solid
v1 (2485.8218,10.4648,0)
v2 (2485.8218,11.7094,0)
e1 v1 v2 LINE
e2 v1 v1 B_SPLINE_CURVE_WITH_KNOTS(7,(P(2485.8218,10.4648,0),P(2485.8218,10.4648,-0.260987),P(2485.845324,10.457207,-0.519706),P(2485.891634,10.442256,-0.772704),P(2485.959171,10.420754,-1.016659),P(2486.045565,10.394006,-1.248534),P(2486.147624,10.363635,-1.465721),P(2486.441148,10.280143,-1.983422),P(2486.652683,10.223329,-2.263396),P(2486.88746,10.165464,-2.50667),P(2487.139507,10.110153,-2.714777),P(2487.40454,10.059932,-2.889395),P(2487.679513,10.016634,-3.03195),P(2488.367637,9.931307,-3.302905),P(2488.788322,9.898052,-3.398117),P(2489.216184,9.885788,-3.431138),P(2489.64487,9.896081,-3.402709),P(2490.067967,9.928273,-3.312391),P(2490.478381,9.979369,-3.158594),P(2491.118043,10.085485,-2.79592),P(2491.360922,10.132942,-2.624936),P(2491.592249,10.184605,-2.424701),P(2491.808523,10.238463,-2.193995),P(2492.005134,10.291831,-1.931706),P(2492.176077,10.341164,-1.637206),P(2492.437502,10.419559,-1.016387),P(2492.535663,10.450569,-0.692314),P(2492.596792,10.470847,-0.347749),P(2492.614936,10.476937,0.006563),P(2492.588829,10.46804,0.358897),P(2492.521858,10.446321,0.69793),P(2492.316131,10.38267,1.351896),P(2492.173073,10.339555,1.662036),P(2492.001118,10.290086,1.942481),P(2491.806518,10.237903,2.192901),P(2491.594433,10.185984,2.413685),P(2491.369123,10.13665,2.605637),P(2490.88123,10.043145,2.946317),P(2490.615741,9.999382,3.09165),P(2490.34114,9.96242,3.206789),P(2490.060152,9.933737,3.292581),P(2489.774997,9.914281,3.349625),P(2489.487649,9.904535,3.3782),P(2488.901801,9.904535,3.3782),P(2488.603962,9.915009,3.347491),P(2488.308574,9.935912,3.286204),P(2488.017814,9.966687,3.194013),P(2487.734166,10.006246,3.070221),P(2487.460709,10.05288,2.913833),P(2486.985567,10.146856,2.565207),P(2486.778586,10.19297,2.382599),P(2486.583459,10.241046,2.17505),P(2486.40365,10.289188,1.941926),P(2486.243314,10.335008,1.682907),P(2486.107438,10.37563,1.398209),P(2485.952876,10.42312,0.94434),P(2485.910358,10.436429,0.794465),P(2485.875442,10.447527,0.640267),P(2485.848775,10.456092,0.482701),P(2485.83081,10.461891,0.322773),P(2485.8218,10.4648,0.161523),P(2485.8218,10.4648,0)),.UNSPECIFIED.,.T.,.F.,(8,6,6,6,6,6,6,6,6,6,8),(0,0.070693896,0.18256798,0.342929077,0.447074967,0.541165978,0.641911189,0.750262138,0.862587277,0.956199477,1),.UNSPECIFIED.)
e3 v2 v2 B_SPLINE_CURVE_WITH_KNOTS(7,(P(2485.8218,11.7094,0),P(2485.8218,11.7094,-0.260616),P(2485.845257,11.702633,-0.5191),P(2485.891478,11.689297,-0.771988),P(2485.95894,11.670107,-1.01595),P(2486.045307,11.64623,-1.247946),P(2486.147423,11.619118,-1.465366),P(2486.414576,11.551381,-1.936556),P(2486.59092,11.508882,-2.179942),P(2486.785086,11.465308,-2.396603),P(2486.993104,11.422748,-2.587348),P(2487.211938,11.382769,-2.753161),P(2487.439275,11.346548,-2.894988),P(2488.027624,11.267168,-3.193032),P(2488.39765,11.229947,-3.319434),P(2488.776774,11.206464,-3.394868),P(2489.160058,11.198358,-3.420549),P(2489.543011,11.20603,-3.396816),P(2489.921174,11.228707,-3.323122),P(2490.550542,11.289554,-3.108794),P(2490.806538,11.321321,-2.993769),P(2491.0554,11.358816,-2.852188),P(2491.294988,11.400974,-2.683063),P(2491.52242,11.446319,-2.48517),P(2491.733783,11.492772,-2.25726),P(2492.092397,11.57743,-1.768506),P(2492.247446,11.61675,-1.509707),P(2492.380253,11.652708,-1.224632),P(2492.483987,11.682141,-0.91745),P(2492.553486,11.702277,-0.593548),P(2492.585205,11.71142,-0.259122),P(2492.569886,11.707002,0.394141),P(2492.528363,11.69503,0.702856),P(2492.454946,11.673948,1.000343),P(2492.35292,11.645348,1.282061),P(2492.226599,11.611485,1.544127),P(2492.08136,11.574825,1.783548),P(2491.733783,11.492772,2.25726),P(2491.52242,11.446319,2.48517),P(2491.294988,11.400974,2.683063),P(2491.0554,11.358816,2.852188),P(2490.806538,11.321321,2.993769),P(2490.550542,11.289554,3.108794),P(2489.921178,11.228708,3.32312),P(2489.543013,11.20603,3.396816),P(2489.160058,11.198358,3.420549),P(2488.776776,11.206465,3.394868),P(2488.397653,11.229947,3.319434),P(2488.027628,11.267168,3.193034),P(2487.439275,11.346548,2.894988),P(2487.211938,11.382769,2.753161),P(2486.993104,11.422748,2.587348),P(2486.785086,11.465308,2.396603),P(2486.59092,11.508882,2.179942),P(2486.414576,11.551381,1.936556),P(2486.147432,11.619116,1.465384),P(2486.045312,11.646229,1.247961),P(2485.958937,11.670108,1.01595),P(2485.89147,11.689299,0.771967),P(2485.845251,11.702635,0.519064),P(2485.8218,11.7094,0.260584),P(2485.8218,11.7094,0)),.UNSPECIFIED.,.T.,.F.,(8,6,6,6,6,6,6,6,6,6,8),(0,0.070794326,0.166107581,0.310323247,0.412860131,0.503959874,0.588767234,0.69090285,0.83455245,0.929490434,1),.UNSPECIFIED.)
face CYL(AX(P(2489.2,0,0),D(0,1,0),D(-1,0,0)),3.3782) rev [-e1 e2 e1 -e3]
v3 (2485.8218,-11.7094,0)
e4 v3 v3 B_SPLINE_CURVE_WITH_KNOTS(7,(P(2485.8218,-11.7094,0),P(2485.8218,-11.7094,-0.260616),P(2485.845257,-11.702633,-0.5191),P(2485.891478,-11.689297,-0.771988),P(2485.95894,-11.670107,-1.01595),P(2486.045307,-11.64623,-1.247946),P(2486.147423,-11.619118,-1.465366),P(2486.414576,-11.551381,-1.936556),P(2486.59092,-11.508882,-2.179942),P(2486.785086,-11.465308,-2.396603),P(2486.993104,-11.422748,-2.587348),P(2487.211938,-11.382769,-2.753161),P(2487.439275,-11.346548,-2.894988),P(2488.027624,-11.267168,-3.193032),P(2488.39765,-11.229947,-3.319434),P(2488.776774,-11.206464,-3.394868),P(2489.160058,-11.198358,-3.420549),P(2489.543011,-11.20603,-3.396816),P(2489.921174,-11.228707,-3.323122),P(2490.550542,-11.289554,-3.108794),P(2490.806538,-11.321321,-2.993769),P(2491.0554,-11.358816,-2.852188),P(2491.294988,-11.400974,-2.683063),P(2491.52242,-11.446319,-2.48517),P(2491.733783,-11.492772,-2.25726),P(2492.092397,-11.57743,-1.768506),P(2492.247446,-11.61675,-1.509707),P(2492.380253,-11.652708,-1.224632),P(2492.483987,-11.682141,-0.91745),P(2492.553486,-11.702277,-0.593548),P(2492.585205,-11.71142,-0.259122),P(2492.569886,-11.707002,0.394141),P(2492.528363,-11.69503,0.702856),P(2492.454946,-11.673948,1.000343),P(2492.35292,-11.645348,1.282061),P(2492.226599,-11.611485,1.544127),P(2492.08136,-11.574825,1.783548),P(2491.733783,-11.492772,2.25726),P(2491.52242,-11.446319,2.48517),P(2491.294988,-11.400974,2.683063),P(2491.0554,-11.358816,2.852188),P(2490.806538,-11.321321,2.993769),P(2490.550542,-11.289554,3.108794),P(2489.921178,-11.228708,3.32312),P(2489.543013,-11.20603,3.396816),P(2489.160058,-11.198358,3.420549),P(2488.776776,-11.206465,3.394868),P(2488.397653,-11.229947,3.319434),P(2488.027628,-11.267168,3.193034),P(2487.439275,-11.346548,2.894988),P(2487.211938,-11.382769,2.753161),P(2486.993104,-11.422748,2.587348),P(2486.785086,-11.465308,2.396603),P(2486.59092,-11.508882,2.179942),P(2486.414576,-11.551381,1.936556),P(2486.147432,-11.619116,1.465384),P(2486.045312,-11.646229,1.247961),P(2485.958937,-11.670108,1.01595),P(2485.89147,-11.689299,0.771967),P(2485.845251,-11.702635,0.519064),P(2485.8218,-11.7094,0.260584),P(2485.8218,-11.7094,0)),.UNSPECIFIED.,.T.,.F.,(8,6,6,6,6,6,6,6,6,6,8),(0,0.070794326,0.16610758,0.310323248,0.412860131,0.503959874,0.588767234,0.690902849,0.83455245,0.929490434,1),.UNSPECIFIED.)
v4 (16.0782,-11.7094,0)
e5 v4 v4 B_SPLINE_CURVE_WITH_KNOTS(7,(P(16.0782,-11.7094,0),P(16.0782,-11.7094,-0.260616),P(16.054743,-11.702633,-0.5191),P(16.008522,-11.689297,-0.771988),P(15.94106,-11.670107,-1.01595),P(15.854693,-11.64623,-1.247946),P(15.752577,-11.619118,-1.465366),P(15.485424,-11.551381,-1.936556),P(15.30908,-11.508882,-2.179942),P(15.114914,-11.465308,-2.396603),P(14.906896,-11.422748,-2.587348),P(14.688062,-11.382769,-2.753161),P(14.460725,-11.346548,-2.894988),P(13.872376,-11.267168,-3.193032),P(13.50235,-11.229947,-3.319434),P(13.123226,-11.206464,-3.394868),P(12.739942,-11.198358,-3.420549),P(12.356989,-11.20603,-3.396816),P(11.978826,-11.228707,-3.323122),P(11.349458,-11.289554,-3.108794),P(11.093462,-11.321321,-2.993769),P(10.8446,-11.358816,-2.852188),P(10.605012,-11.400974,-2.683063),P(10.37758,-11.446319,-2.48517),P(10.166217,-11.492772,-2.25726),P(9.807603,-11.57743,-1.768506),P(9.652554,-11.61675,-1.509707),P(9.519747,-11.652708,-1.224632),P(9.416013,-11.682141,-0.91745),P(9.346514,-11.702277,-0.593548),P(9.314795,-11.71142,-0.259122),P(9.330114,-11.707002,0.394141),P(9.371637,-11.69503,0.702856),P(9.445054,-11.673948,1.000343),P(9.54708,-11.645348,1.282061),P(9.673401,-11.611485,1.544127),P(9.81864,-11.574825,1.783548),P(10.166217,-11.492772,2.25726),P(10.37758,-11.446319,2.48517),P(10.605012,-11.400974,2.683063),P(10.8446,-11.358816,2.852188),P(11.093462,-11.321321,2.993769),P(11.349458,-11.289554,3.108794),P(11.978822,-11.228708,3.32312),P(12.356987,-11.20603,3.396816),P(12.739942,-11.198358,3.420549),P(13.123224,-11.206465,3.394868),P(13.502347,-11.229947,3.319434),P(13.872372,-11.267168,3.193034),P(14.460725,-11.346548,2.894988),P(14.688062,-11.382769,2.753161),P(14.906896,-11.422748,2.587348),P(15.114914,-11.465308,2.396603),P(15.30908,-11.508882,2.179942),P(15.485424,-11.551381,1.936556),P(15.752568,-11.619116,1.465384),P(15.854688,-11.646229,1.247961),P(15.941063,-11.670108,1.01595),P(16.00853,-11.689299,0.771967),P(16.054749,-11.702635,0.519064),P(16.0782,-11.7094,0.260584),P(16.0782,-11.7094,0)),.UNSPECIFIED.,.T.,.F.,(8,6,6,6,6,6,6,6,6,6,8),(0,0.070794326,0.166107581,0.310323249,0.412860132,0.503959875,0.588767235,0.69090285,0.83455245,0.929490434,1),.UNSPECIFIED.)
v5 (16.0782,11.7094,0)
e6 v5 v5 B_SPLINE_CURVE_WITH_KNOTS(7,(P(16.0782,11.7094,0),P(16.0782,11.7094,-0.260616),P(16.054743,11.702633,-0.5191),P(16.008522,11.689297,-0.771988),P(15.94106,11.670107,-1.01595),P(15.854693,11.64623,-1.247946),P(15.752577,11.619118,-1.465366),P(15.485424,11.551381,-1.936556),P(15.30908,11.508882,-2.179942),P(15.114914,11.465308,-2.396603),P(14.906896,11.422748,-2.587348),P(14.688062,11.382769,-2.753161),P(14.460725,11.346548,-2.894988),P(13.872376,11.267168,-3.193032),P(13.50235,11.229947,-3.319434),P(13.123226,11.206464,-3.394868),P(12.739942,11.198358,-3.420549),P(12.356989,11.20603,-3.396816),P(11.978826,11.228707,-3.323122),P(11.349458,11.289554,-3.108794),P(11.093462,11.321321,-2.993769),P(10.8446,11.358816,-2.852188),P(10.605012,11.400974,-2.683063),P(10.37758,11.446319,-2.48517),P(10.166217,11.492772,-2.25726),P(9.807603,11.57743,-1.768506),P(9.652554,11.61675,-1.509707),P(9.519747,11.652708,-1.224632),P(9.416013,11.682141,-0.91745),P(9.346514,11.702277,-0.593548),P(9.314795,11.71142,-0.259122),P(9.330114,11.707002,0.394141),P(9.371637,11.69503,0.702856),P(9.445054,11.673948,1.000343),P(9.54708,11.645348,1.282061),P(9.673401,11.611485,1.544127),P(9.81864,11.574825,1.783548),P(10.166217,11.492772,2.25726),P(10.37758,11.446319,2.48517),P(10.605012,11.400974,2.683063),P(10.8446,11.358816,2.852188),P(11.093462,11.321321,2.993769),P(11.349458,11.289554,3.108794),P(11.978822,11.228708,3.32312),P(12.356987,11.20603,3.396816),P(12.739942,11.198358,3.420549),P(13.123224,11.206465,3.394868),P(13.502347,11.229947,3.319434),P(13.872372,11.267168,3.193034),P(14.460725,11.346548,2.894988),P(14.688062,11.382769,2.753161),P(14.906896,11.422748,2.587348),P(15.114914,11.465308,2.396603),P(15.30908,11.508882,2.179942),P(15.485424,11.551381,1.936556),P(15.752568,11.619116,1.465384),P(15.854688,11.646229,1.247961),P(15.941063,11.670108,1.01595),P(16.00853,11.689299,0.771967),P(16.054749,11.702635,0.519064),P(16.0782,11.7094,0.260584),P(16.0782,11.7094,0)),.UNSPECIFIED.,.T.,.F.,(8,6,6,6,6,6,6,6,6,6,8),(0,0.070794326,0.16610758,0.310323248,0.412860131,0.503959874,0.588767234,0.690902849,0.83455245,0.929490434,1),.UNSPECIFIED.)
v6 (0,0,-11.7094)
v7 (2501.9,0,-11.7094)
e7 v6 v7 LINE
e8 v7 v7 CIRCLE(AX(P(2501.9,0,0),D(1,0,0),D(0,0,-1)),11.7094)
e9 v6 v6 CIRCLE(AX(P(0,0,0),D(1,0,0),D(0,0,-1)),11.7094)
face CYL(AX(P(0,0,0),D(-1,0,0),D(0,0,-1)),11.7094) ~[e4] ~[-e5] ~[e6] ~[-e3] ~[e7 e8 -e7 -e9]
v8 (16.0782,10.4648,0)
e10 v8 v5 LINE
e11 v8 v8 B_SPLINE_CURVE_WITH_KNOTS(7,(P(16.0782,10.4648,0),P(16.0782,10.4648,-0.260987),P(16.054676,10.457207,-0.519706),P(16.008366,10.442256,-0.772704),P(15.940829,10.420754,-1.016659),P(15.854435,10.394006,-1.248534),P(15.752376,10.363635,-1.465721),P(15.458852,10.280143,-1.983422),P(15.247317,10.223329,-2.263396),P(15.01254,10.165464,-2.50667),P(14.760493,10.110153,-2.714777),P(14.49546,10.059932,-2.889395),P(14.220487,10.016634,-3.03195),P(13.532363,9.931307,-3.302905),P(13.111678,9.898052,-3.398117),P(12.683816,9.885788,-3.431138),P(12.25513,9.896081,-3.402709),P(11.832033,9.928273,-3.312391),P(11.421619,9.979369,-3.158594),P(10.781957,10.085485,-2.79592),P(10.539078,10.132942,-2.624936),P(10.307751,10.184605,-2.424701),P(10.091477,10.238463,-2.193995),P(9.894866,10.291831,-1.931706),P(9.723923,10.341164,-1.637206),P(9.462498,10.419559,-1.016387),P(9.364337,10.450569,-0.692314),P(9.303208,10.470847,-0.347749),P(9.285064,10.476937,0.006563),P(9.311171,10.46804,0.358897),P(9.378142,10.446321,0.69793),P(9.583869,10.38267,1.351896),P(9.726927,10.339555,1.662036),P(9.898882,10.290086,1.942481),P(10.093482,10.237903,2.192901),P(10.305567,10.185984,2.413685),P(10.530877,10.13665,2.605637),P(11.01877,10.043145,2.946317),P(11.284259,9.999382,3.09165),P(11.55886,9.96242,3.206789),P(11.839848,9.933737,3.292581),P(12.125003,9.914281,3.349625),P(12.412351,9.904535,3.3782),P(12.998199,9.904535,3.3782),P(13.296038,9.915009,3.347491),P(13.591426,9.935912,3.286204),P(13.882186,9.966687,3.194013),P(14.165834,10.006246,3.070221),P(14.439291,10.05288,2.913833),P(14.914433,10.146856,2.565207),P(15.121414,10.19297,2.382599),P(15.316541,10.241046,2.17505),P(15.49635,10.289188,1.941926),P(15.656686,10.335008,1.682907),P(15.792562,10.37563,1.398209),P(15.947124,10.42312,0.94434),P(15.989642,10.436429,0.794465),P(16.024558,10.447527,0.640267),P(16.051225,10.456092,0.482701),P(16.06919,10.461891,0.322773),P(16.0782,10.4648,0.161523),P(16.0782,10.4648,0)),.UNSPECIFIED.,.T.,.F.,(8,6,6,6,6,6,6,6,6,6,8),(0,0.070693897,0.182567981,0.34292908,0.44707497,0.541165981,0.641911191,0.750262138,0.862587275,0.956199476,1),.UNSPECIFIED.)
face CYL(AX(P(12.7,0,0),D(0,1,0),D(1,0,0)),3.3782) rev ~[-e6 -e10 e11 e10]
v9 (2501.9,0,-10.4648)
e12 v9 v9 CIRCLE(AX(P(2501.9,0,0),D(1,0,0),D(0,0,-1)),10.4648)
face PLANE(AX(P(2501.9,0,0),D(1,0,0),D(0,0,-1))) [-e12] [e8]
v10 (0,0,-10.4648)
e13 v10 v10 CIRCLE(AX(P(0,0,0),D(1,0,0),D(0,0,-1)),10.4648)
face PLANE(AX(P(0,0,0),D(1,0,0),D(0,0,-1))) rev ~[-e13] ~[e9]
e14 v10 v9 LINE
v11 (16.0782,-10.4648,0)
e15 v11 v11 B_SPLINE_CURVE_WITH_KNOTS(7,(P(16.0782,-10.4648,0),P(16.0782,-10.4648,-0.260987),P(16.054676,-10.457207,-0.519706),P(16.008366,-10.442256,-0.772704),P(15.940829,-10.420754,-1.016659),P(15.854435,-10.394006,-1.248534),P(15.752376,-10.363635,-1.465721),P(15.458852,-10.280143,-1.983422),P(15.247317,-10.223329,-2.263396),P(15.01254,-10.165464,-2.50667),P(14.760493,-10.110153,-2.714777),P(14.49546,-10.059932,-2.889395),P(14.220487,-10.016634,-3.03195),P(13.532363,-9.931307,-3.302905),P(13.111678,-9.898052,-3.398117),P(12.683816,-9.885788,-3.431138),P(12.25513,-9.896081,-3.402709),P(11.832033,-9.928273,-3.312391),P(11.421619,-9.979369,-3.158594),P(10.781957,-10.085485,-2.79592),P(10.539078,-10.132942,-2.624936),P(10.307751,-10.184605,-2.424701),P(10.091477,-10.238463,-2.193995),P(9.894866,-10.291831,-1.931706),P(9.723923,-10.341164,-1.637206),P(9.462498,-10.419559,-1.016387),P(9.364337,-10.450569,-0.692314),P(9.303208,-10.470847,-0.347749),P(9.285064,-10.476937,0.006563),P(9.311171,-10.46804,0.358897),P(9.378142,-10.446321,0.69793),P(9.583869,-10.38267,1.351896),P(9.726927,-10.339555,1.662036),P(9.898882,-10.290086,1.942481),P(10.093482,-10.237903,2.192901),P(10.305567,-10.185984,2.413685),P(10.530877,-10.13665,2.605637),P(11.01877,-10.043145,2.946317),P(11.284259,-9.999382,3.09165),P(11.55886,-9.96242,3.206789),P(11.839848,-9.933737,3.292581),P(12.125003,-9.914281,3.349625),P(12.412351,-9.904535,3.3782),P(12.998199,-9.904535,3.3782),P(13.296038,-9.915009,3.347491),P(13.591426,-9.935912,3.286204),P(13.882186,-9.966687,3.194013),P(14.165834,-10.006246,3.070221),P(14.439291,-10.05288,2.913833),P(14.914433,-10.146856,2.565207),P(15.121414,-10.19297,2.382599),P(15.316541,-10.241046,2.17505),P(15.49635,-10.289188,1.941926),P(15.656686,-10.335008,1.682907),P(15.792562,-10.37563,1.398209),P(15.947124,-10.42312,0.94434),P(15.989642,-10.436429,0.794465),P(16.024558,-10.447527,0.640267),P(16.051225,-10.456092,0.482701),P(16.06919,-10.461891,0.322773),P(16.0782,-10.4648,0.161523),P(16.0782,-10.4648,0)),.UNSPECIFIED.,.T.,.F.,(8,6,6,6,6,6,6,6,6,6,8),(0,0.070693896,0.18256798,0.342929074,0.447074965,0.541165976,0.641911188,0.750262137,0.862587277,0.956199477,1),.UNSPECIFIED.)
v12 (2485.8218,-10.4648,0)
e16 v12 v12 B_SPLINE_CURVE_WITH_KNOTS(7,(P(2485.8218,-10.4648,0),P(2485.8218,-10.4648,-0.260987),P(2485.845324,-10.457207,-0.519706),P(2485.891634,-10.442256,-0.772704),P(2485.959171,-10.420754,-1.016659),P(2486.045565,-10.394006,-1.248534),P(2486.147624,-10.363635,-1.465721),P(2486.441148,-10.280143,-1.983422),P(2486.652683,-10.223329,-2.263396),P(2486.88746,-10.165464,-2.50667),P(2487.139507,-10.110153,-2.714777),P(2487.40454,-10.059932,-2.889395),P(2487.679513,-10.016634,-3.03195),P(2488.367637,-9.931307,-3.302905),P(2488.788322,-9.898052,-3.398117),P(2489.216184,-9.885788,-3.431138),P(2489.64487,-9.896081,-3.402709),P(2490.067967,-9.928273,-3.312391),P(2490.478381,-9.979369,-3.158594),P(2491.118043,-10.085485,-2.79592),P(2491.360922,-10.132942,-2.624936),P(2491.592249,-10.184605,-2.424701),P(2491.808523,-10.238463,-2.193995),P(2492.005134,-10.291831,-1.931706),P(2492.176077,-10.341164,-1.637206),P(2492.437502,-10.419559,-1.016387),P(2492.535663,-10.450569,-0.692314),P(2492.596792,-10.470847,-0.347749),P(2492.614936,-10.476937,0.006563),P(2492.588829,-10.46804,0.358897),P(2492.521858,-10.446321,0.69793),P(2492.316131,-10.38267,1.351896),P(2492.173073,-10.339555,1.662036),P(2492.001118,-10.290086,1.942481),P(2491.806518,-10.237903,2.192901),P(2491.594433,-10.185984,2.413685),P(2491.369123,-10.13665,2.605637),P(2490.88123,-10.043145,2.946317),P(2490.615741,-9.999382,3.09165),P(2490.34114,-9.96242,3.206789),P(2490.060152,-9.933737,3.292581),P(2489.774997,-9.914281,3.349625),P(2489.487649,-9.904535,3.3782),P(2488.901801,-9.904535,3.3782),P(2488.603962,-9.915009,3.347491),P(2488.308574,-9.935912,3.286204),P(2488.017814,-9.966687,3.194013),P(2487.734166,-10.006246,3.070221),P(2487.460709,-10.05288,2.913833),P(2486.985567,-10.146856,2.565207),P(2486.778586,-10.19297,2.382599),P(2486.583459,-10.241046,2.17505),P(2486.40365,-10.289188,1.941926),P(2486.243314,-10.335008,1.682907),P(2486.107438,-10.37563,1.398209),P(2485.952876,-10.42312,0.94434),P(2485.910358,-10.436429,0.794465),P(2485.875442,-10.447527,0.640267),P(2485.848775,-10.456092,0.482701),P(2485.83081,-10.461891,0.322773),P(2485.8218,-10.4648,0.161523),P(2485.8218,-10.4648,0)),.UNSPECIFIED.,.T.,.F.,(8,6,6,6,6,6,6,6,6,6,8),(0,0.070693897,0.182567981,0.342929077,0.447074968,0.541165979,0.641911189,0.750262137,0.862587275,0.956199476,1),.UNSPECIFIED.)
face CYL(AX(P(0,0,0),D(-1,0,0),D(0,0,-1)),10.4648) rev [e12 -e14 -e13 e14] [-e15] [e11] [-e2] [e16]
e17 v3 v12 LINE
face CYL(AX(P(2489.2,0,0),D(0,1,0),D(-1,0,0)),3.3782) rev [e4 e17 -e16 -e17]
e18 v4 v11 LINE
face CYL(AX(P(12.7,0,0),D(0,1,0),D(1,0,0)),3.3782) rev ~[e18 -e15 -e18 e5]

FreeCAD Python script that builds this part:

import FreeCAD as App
import Part
import Sketcher
Q = App.Units.Quantity

doc = App.newDocument("Part")
body = doc.addObject("PartDesign::Body", "Body")

# Sketch on YZ plane
sketch1 = body.newObject("Sketcher::SketchObject", "Sketch")
sketch1.AttachmentSupport = (doc.getObject("YZ_Plane"), [""])
sketch1.MapMode = "FlatFace"
sketch1.addGeometry([
    Part.Circle(App.Vector(0, 0, 0), App.Vector(0, 0, 1), 11.7094),
    Part.Circle(App.Vector(0, 0, 0), App.Vector(0, 0, 1), 10.4648),
], False)
sketch1.addConstraint([
    Sketcher.Constraint("Coincident", 0, 3, -1, 1),
    Sketcher.Constraint("Coincident", 1, 3, -1, 1),
    Sketcher.Constraint("Diameter", 0, Q("0.922 in")),
    Sketcher.Constraint("Diameter", 1, Q("0.824 in")),
])
pad1 = body.newObject("PartDesign::Pad", "Pad")
pad1.Profile = sketch1
pad1.Length = Q("98.5 in")

# Sketch on XZ plane
sketch2 = body.newObject("Sketcher::SketchObject", "Sketch001")
sketch2.AttachmentSupport = (doc.getObject("XZ_Plane"), [""])
sketch2.MapMode = "FlatFace"
sketch2.addGeometry(Part.Circle(App.Vector(12.7, 0, 0), App.Vector(0, 0, 1), 3.3782), False)
sketch2.addConstraint([
    Sketcher.Constraint("PointOnObject", 0, 3, -1),
    Sketcher.Constraint("Diameter", 0, Q("0.266 in")),
    Sketcher.Constraint("DistanceX", -1, 1, 0, 3, Q("0.5 in")),
])
pocket1 = body.newObject("PartDesign::Pocket", "Pocket")
pocket1.Profile = sketch2
pocket1.Length = 25.4188
pocket1.Midplane = True
doc.recompute()

datumplane = body.newObject("PartDesign::Plane", "DatumPlane")
datumplane.AttachmentSupport = (doc.getObject("YZ_Plane"), [""])
datumplane.MapMode = "FlatFace"
datumplane.AttachmentOffset = App.Placement(App.Vector(0, 0, 49.25 * 25.4), App.Rotation())
mirrored = body.newObject("PartDesign::Mirrored", "Mirrored")
mirrored.Originals = [pocket1]
mirrored.MirrorPlane = (datumplane, [""])
body.Tip = mirrored

doc.recompute()
